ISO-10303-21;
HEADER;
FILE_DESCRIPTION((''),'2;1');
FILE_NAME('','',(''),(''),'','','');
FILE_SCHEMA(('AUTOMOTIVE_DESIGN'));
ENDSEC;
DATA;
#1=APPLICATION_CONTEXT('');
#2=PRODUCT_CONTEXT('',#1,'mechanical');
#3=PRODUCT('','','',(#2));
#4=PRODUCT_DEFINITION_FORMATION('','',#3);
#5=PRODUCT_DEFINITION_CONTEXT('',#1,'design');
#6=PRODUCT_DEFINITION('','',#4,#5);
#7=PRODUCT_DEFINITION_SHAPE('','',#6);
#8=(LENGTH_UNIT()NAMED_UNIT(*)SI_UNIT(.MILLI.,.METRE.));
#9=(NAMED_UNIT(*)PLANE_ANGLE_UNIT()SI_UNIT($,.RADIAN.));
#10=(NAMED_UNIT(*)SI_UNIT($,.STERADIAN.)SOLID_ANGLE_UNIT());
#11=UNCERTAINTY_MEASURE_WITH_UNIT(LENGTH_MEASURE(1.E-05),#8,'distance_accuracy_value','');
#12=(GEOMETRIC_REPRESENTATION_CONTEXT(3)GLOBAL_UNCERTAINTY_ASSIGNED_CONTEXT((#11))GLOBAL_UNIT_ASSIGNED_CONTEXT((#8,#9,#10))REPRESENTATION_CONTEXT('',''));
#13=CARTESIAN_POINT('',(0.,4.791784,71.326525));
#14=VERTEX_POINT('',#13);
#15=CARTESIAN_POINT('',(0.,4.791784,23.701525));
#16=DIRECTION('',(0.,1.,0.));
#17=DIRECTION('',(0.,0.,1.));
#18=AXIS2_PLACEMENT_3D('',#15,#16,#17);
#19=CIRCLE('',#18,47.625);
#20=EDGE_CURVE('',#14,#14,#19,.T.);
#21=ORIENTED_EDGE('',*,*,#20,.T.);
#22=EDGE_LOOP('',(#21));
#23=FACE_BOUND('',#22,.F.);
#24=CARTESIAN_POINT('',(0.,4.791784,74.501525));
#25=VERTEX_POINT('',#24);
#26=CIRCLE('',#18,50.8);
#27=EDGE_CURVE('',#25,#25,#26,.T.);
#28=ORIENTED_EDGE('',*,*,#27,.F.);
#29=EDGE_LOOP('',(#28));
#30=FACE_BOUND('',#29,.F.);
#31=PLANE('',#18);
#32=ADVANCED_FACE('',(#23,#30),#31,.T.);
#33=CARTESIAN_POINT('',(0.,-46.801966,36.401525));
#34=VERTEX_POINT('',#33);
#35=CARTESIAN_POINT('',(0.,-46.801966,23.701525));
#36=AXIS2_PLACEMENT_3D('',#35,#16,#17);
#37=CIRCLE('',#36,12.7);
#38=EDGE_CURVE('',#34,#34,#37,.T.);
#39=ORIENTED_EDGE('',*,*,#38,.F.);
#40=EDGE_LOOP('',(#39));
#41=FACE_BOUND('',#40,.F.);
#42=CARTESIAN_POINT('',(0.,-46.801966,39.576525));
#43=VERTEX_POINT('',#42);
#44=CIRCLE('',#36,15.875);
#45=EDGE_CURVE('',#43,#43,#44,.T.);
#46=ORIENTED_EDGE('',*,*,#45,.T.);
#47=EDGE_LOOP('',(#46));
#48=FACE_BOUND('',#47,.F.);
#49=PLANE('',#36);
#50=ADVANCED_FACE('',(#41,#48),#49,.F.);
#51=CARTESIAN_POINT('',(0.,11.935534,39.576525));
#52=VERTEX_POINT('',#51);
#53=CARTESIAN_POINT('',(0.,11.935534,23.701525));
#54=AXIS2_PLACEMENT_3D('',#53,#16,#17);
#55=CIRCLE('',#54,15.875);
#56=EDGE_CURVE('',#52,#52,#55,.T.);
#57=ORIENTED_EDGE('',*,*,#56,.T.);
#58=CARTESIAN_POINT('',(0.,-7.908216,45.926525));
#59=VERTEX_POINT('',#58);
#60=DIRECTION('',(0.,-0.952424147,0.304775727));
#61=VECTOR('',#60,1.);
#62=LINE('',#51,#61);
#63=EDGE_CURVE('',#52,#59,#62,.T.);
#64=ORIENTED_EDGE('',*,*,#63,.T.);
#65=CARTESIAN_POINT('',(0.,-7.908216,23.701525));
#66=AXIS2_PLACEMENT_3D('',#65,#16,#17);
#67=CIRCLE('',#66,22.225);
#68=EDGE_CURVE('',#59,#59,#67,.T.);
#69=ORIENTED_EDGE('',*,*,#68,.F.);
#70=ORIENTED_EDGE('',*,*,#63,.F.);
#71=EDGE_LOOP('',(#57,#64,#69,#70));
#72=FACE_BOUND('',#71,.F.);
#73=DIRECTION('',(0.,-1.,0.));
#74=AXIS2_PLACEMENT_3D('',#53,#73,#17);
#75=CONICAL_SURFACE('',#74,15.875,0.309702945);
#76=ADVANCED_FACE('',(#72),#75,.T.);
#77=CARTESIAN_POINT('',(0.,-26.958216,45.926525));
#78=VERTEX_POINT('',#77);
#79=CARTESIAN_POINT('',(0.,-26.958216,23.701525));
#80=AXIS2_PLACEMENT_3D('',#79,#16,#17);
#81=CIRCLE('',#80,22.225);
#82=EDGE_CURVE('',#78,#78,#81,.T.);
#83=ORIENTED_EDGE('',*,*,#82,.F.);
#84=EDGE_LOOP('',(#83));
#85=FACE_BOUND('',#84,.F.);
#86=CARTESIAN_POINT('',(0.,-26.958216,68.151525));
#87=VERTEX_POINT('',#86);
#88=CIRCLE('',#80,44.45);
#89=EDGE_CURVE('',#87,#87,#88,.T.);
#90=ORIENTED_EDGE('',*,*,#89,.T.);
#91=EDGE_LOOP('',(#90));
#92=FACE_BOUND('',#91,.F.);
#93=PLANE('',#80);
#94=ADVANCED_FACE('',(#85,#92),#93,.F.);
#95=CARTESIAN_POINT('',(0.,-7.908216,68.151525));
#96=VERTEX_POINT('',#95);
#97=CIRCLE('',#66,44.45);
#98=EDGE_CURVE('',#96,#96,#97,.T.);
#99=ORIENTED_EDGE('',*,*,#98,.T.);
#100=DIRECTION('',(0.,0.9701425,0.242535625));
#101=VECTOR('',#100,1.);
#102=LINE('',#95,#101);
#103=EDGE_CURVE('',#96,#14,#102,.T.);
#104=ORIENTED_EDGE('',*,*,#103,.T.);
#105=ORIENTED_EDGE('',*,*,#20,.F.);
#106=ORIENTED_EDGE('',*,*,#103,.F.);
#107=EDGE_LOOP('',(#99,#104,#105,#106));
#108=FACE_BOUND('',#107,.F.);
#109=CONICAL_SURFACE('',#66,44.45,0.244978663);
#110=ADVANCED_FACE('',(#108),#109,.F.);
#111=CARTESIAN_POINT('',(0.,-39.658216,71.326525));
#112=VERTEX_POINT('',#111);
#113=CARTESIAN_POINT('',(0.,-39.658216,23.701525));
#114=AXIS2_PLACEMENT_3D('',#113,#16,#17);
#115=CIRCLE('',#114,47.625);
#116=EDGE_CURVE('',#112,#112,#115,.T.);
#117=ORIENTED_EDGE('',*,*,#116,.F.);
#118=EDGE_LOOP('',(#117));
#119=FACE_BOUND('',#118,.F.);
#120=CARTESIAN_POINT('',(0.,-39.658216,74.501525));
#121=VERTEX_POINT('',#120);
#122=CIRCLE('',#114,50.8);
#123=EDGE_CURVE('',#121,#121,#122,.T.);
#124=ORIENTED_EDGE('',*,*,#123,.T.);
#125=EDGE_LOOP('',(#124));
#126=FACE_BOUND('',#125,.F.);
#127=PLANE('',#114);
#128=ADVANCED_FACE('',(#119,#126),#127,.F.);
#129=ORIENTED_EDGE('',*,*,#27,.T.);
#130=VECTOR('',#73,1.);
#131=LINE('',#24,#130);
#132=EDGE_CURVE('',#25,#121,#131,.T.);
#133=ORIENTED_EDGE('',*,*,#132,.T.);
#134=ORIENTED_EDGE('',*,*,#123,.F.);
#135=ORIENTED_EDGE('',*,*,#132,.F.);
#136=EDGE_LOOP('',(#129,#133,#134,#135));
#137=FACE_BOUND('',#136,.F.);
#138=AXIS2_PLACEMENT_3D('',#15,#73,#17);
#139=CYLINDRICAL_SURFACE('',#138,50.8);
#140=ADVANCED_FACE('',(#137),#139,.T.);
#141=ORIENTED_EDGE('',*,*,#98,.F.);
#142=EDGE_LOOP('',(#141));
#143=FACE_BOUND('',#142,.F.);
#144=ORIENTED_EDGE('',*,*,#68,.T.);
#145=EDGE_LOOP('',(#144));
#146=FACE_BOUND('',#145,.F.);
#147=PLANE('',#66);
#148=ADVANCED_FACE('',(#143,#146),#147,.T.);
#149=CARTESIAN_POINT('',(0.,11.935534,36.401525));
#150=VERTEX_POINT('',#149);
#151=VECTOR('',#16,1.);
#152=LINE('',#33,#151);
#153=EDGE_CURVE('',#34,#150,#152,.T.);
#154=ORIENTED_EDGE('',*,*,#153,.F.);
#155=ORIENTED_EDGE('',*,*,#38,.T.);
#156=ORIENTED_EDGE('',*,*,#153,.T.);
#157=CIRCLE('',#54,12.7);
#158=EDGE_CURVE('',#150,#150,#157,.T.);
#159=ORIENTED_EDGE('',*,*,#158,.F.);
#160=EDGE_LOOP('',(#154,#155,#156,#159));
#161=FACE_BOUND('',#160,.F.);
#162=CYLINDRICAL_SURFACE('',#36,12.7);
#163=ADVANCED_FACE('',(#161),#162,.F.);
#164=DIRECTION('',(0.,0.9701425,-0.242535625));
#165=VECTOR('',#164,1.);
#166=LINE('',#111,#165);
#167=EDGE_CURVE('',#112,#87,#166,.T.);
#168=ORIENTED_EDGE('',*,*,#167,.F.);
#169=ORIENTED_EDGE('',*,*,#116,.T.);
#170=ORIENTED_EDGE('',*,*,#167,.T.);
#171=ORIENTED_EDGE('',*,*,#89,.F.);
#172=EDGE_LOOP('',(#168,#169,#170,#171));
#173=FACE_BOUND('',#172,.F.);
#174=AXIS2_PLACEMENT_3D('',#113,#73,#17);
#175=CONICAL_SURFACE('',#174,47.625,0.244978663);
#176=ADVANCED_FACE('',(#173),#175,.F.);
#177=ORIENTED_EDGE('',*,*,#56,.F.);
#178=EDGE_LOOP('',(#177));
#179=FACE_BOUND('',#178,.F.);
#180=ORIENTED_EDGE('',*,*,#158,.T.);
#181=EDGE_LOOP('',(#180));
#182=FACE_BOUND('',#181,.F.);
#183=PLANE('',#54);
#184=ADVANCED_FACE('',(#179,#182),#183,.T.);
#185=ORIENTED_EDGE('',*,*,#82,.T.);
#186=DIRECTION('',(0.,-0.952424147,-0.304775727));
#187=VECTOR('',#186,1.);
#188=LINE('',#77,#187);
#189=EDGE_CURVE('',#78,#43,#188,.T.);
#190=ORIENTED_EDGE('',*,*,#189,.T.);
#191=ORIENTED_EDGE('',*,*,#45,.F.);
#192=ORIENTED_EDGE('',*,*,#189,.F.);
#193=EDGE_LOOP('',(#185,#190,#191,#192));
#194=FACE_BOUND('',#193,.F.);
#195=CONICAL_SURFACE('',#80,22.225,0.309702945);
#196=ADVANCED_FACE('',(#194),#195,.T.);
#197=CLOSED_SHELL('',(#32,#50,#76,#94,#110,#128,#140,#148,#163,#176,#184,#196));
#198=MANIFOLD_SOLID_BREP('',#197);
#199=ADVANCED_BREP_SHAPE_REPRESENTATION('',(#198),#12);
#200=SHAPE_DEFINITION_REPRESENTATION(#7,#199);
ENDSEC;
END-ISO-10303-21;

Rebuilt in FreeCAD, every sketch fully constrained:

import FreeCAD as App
import Part
import Sketcher
from FreeCAD import Vector
Q = App.Units.Quantity


def add_polygon(sketch, points):
    """Adds a closed chain of lines whose ends are joined by coincident constraints."""
    first, n = sketch.GeometryCount, len(points)
    for a, b in zip(points, points[1:] + points[:1]):
        sketch.addGeometry(Part.LineSegment(App.Vector(*a, 0), App.Vector(*b, 0)), False)
    for i in range(n):
        sketch.addConstraint(Sketcher.Constraint("Coincident", first + i, 2, first + (i + 1) % n, 1))

doc = App.newDocument("Part")
body = doc.addObject("PartDesign::Body", "Body")

sketch1 = doc.addObject("Sketcher::SketchObject", "Sketch")
body.addObject(sketch1)
sketch1.AttachmentSupport = (doc.YZ_Plane, [""])
sketch1.MapMode = "FlatFace"
add_polygon(sketch1, [(-46.8, 39.6), (-46.8, 36.4), (11.9, 36.4), (11.9, 39.6), (-7.9, 45.9), (-7.9, 68.2), (4.8, 71.3), (4.8, 74.5), (-39.7, 74.5), (-39.7, 71.3), (-27, 68.2), (-27, 45.9)])
sketch1.addGeometry(Part.LineSegment(Vector(-46.8, 23.7, 0), Vector(11.9, 23.7, 0)), True)
sketch1.addConstraint([
    Sketcher.Constraint("Vertical", 0),
    Sketcher.Constraint("Horizontal", 1),
    Sketcher.Constraint("Vertical", 2),
    Sketcher.Constraint("Vertical", 4),
    Sketcher.Constraint("Vertical", 6),
    Sketcher.Constraint("Horizontal", 7),
    Sketcher.Constraint("Vertical", 8),
    Sketcher.Constraint("Vertical", 10),
    Sketcher.Constraint("Horizontal", 12),
    Sketcher.Constraint("Horizontal", 5, 2, 8, 2),
    Sketcher.Constraint("Horizontal", 4, 2, 9, 2),
    Sketcher.Constraint("Horizontal", 3, 2, 10, 2),
    Sketcher.Constraint("Horizontal", 2, 2, 11, 2),
    Sketcher.Constraint("Vertical", 11, 2, 12, 1),
    Sketcher.Constraint("Vertical", 2, 2, 12, 2),
    Sketcher.Constraint("Equal", 2, 6),
    Sketcher.Constraint("Equal", 5, 9),
    Sketcher.Constraint("Equal", 3, 11),
    Sketcher.Constraint("DistanceY", 3, 2, 5, 2, Q("1 in")),
    Sketcher.Constraint("DistanceX", 7, 2, 7, 1, Q("1.75 in")),
    Sketcher.Constraint("DistanceX", 4, 2, 5, 2, Q("0.5 in")),
    Sketcher.Constraint("DistanceY", 1, 2, 6, 2, Q("1.5 in")),
    Sketcher.Constraint("DistanceY", 12, 1, 0, 2, Q("0.5 in")),
    Sketcher.Constraint("DistanceX", 1, 1, 1, 2, Q("2.3125 in")),
    Sketcher.Constraint("DistanceY", 0, 2, 0, 1, Q("0.125 in")),
    Sketcher.Constraint("DistanceY", 4, 1, 4, 2, Q("0.875 in")),
    Sketcher.Constraint("DistanceX", 0, 2, -1, 1, Q("46.801966 mm")),
    Sketcher.Constraint("DistanceY", -1, 1, 0, 2, Q("36.401525 mm")),
])
revolution = doc.addObject("PartDesign::Revolution", "Revolution")
body.addObject(revolution)
revolution.Profile = sketch1
revolution.ReferenceAxis = (sketch1, ["Axis0"])
revolution.Angle = 360

doc.recompute()
